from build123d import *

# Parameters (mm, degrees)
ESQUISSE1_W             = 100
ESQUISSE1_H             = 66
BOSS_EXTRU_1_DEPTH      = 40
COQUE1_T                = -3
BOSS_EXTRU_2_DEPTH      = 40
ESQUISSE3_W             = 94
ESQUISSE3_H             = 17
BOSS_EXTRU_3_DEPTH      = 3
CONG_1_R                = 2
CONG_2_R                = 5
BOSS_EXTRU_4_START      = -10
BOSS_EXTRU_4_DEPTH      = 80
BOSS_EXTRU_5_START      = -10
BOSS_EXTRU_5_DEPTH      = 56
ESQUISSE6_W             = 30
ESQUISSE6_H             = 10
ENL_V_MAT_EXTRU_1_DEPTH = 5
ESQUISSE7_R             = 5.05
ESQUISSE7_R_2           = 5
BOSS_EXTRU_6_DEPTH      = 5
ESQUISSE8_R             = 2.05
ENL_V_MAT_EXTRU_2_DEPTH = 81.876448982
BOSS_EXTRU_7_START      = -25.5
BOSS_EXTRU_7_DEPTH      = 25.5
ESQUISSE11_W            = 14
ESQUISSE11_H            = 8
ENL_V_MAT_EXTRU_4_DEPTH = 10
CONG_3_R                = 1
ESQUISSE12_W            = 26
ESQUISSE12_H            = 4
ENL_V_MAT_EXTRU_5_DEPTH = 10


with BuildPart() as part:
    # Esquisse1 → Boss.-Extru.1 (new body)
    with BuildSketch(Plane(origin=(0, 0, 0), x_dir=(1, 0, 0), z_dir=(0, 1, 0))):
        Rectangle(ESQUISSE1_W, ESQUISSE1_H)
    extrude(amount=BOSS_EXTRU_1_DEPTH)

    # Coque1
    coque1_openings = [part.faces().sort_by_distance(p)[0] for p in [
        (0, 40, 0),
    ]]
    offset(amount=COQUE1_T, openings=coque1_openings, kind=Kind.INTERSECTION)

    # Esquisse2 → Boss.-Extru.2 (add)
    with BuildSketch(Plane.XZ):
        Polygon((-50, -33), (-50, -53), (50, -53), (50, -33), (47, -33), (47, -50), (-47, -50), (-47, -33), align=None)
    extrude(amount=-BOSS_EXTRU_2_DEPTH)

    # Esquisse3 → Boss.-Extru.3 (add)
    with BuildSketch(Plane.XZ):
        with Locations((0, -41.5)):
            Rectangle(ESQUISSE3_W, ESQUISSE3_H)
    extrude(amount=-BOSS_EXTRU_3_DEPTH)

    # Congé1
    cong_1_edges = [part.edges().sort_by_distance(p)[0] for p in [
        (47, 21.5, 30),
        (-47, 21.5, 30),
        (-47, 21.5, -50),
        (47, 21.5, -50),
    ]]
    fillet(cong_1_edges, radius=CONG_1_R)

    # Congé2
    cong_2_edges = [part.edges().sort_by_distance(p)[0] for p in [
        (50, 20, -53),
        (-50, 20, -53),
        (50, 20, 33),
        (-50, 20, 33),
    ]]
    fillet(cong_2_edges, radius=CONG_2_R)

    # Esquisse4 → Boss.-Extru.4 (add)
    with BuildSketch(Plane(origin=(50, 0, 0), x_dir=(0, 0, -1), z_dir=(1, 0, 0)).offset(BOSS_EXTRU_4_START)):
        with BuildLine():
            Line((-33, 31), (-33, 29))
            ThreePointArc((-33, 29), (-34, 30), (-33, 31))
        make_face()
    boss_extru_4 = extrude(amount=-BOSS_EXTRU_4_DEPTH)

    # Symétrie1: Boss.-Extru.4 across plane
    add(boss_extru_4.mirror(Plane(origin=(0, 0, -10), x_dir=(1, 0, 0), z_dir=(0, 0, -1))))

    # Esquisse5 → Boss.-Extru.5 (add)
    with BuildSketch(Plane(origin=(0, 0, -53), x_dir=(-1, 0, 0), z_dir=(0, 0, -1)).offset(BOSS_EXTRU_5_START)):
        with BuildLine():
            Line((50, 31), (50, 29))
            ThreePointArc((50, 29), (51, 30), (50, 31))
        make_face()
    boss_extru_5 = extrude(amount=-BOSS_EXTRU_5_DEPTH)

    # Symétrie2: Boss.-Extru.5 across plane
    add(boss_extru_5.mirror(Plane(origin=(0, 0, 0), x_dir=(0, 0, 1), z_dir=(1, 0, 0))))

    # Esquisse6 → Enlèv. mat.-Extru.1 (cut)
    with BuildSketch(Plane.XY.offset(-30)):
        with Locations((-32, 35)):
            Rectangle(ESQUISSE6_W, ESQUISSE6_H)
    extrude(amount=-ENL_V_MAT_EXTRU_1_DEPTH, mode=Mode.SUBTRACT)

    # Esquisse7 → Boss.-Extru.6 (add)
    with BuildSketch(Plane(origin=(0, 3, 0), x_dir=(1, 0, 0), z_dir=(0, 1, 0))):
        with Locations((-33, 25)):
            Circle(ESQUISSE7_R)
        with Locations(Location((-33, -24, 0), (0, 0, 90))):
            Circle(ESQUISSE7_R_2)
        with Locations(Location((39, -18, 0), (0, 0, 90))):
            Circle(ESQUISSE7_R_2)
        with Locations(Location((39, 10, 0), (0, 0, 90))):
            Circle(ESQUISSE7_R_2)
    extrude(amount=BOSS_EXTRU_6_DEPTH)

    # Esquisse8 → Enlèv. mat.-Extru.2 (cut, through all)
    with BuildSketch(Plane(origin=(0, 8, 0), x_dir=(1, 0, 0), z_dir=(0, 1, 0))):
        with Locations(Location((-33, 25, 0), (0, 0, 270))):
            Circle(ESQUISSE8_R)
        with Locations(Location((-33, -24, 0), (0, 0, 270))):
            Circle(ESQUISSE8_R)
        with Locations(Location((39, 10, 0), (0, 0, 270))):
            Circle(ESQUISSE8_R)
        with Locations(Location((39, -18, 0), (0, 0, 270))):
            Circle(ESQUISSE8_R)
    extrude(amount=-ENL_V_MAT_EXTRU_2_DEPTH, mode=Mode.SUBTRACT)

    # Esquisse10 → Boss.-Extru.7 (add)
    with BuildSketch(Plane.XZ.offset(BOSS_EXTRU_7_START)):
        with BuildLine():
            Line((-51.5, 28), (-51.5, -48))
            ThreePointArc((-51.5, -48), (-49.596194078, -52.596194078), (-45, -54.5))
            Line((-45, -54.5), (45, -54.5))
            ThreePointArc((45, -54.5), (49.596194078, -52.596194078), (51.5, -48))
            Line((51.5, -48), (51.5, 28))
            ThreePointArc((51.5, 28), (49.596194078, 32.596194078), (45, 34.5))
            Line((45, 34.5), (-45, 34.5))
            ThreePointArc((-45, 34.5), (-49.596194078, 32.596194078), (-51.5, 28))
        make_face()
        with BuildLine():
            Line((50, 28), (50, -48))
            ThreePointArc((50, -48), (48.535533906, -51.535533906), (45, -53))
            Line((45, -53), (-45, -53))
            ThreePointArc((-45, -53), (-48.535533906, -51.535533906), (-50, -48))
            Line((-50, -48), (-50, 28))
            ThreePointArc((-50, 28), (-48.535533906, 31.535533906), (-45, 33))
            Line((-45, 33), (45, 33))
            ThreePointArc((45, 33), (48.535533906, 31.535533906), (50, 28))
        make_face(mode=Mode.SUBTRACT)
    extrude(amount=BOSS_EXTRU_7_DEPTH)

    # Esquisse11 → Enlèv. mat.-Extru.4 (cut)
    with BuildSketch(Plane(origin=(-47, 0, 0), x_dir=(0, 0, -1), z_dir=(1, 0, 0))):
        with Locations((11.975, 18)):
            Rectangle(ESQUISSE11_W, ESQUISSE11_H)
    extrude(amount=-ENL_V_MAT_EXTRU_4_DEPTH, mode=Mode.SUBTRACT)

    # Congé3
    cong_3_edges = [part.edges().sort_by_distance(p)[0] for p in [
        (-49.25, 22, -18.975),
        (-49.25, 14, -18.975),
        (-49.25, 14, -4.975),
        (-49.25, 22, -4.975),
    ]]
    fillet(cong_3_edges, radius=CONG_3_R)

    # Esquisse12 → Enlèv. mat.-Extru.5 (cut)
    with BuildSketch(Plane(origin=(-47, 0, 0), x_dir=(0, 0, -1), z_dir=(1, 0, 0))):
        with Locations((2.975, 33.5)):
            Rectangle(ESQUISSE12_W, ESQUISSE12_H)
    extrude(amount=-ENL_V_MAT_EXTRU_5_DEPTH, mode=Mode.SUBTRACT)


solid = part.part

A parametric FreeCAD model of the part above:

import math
import FreeCAD as App
import Part
import Sketcher
from FreeCAD import Vector


def edges_at(feature, points):
    """Names of the edges that pass closest to the given points."""
    edges = feature.Shape.Edges
    near = lambda p: min(range(len(edges)), key=lambda i: edges[i].distToShape(Part.Vertex(*p))[0])
    return sorted({f"Edge{near(p) + 1}" for p in points})


def faces_at(feature, points):
    """Names of the faces that lie closest to the given points."""
    faces = feature.Shape.Faces
    near = lambda p: min(range(len(faces)), key=lambda i: faces[i].distToShape(Part.Vertex(*p))[0])
    return sorted({f"Face{near(p) + 1}" for p in points})


def add_polygon(sketch, points):
    """Adds a closed chain of lines whose ends are joined by coincident constraints."""
    first, n = sketch.GeometryCount, len(points)
    for a, b in zip(points, points[1:] + points[:1]):
        sketch.addGeometry(Part.LineSegment(App.Vector(*a, 0), App.Vector(*b, 0)), False)
    for i in range(n):
        sketch.addConstraint(Sketcher.Constraint("Coincident", first + i, 2, first + (i + 1) % n, 1))

doc = App.newDocument("Part")
body = doc.addObject("PartDesign::Body", "Body")

# Sketch on XZ plane
sketch1 = body.newObject("Sketcher::SketchObject", "Sketch")
sketch1.AttachmentSupport = (doc.getObject("XZ_Plane"), [""])
sketch1.MapMode = "FlatFace"
add_polygon(sketch1, [(-50, -33), (-50, 33), (50, 33), (50, -33)])  # lines 0-3
sketch1.addConstraint([
    Sketcher.Constraint("Vertical", 0),
    Sketcher.Constraint("Horizontal", 1),
    Sketcher.Constraint("Vertical", 2),
    Sketcher.Constraint("Horizontal", 3),
    Sketcher.Constraint("Symmetric", 0, 2, 2, 2, -1, 1),
    Sketcher.Constraint("DistanceX", 1, 1, 1, 2, 100.0),
    Sketcher.Constraint("DistanceY", 0, 1, 0, 2, 66.0),
])
pad1 = body.newObject("PartDesign::Pad", "Pad")
pad1.Profile = sketch1
pad1.Length = 40
pad1.Reversed = True
doc.recompute()

thickness = body.newObject("PartDesign::Thickness", "Thickness")
thickness.Base = (pad1, faces_at(pad1, [(0, 40, 0)]))
thickness.Value = 3
thickness.Reversed = True
thickness.Join = "Intersection"

# Sketch on XZ plane
sketch2 = body.newObject("Sketcher::SketchObject", "Sketch001")
sketch2.AttachmentSupport = (doc.getObject("XZ_Plane"), [""])
sketch2.MapMode = "FlatFace"
add_polygon(sketch2, [(-50, -33), (-50, -53), (50, -53), (50, -33), (47, -33), (47, -50), (-47, -50), (-47, -33)])  # lines 0-7
sketch2.addConstraint([
    Sketcher.Constraint("Vertical", 0),
    Sketcher.Constraint("Horizontal", 1),
    Sketcher.Constraint("Vertical", 2),
    Sketcher.Constraint("Horizontal", 3),
    Sketcher.Constraint("Vertical", 4),
    Sketcher.Constraint("Horizontal", 5),
    Sketcher.Constraint("Vertical", 6),
    Sketcher.Constraint("Horizontal", 7),
    Sketcher.Constraint("Symmetric", 3, 2, 6, 2, -2),
    Sketcher.Constraint("Equal", 3, 7),
    Sketcher.Constraint("DistanceX", 1, 1, 1, 2, 100.0),
    Sketcher.Constraint("DistanceX", 3, 2, 3, 1, 3.0),
    Sketcher.Constraint("DistanceY", 0, 2, 0, 1, 20.0),
    Sketcher.Constraint("DistanceY", 4, 2, 4, 1, 17.0),
    Sketcher.Constraint("DistanceY", 0, 2, -1, 1, 53.0),
])
pad2 = body.newObject("PartDesign::Pad", "Pad001")
pad2.Profile = sketch2
pad2.Length = 40
pad2.Reversed = True

# Sketch on XZ plane
sketch3 = body.newObject("Sketcher::SketchObject", "Sketch002")
sketch3.AttachmentSupport = (doc.getObject("XZ_Plane"), [""])
sketch3.MapMode = "FlatFace"
add_polygon(sketch3, [(-47, -33), (-47, -50), (47, -50), (47, -33)])  # lines 0-3
sketch3.addConstraint([
    Sketcher.Constraint("Vertical", 0),
    Sketcher.Constraint("Horizontal", 1),
    Sketcher.Constraint("Vertical", 2),
    Sketcher.Constraint("Horizontal", 3),
    Sketcher.Constraint("DistanceX", 1, 1, 1, 2, 94.0),
    Sketcher.Constraint("DistanceY", 0, 2, 0, 1, 17.0),
    Sketcher.Constraint("DistanceX", 0, 2, -1, 1, 47.0),
    Sketcher.Constraint("DistanceY", 0, 2, -1, 1, 50.0),
])
pad3 = body.newObject("PartDesign::Pad", "Pad002")
pad3.Profile = sketch3
pad3.Length = 3
pad3.Reversed = True
doc.recompute()

fillet = body.newObject("PartDesign::Fillet", "Fillet")
fillet.Base = (pad3, edges_at(pad3, [
    (47, 21.5, 30),
    (-47, 21.5, 30),
    (-47, 21.5, -50),
    (47, 21.5, -50),
]))
fillet.Radius = 2
doc.recompute()

fillet2 = body.newObject("PartDesign::Fillet", "Fillet001")
fillet2.Base = (fillet, edges_at(fillet, [
    (50, 20, -53),
    (-50, 20, -53),
    (50, 20, 33),
    (-50, 20, 33),
]))
fillet2.Radius = 5

# Sketch on YZ plane
sketch4 = body.newObject("Sketcher::SketchObject", "Sketch003")
sketch4.AttachmentSupport = (doc.getObject("YZ_Plane"), [""])
sketch4.MapMode = "FlatFace"
sketch4.AttachmentOffset = App.Placement(Vector(0, 0, 40), App.Rotation())
sketch4.addGeometry([
    Part.LineSegment(Vector(29, 33, 0), Vector(31, 33, 0)),
    Part.ArcOfCircle(Part.Circle(Vector(30, 33, 0), Vector(0, 0, 1), 1), math.radians(0), math.radians(180)),
], False)
sketch4.addConstraint([
    Sketcher.Constraint("Coincident", 0, 1, 1, 2),
    Sketcher.Constraint("Coincident", 1, 1, 0, 2),
    Sketcher.Constraint("Horizontal", 0),
    Sketcher.Constraint("Horizontal", 1, 3, 0, 1),
    Sketcher.Constraint("Radius", 1, 1.0),
    Sketcher.Constraint("DistanceX", -1, 1, 1, 3, 30.0),
    Sketcher.Constraint("DistanceY", -1, 1, 1, 3, 33.0),
])
pad4 = body.newObject("PartDesign::Pad", "Pad003")
pad4.Profile = sketch4
pad4.Length = 80
pad4.Reversed = True
doc.recompute()

datumplane = body.newObject("PartDesign::Plane", "DatumPlane")
datumplane.AttachmentSupport = (doc.getObject("XY_Plane"), [""])
datumplane.MapMode = "FlatFace"
datumplane.AttachmentOffset = App.Placement(Vector(0, 0, -10), App.Rotation())
mirrored = body.newObject("PartDesign::Mirrored", "Mirrored")
mirrored.Originals = [pad4]
mirrored.MirrorPlane = (datumplane, [""])
body.Tip = mirrored

# Sketch on XY plane
sketch5 = body.newObject("Sketcher::SketchObject", "Sketch004")
sketch5.AttachmentSupport = (doc.getObject("XY_Plane"), [""])
sketch5.MapMode = "FlatFace"
sketch5.AttachmentOffset = App.Placement(Vector(0, 0, -43), App.Rotation())
sketch5.addGeometry([
    Part.LineSegment(Vector(-50, 31, 0), Vector(-50, 29, 0)),
    Part.ArcOfCircle(Part.Circle(Vector(-50, 30, 0), Vector(0, 0, 1), 1), math.radians(90), math.radians(270)),
], False)
sketch5.addConstraint([
    Sketcher.Constraint("Coincident", 0, 1, 1, 1),
    Sketcher.Constraint("Coincident", 1, 2, 0, 2),
    Sketcher.Constraint("Vertical", 0),
    Sketcher.Constraint("Vertical", 1, 3, 0, 1),
    Sketcher.Constraint("Radius", 1, 1.0),
    Sketcher.Constraint("DistanceX", 1, 3, -1, 1, 50.0),
    Sketcher.Constraint("DistanceY", -1, 1, 1, 3, 30.0),
])
pad5 = body.newObject("PartDesign::Pad", "Pad004")
pad5.Profile = sketch5
pad5.Length = 56
doc.recompute()

mirrored2 = body.newObject("PartDesign::Mirrored", "Mirrored001")
mirrored2.Originals = [pad5]
mirrored2.MirrorPlane = (doc.getObject("YZ_Plane"), [""])
body.Tip = mirrored2

# Sketch on XY plane
sketch6 = body.newObject("Sketcher::SketchObject", "Sketch005")
sketch6.AttachmentSupport = (doc.getObject("XY_Plane"), [""])
sketch6.MapMode = "FlatFace"
sketch6.AttachmentOffset = App.Placement(Vector(0, 0, -30), App.Rotation())
add_polygon(sketch6, [(-47, 40), (-47, 30), (-17, 30), (-17, 40)])  # lines 0-3
sketch6.addConstraint([
    Sketcher.Constraint("Vertical", 0),
    Sketcher.Constraint("Horizontal", 1),
    Sketcher.Constraint("Vertical", 2),
    Sketcher.Constraint("Horizontal", 3),
    Sketcher.Constraint("DistanceX", 1, 1, 1, 2, 30.0),
    Sketcher.Constraint("DistanceY", 0, 2, 0, 1, 10.0),
    Sketcher.Constraint("DistanceX", 0, 2, -1, 1, 47.0),
    Sketcher.Constraint("DistanceY", -1, 1, 0, 2, 30.0),
])
pocket1 = body.newObject("PartDesign::Pocket", "Pocket")
pocket1.Profile = sketch6
pocket1.Length = 5

# Sketch on XZ plane
sketch7 = body.newObject("Sketcher::SketchObject", "Sketch006")
sketch7.AttachmentSupport = (doc.getObject("XZ_Plane"), [""])
sketch7.MapMode = "FlatFace"
sketch7.AttachmentOffset = App.Placement(Vector(0, 0, -3), App.Rotation())
sketch7.addGeometry([
    Part.Circle(Vector(-33, -25, 0), Vector(0, 0, 1), 5.05),
    Part.Circle(Vector(-33, 24, 0), Vector(0, 0, 1), 5),
    Part.Circle(Vector(39, 18, 0), Vector(0, 0, 1), 5),
    Part.Circle(Vector(39, -10, 0), Vector(0, 0, 1), 5),
], False)
sketch7.addConstraint([
    Sketcher.Constraint("Equal", 1, 2),
    Sketcher.Constraint("Equal", 2, 3),
    Sketcher.Constraint("Vertical", 0, 3, 1, 3),
    Sketcher.Constraint("Vertical", 2, 3, 3, 3),
    Sketcher.Constraint("Diameter", 1, 10.0),
    Sketcher.Constraint("Diameter", 0, 10.1),
    Sketcher.Constraint("DistanceX", 0, 3, -1, 1, 33.0),
    Sketcher.Constraint("DistanceY", 0, 3, -1, 1, 25.0),
    Sketcher.Constraint("DistanceY", -1, 1, 1, 3, 24.0),
    Sketcher.Constraint("DistanceX", -1, 1, 2, 3, 39.0),
    Sketcher.Constraint("DistanceY", -1, 1, 2, 3, 18.0),
    Sketcher.Constraint("DistanceY", 3, 3, -1, 1, 10.0),
])
pad6 = body.newObject("PartDesign::Pad", "Pad005")
pad6.Profile = sketch7
pad6.Length = 5
pad6.Reversed = True

# Sketch on XZ plane
sketch8 = body.newObject("Sketcher::SketchObject", "Sketch007")
sketch8.AttachmentSupport = (doc.getObject("XZ_Plane"), [""])
sketch8.MapMode = "FlatFace"
sketch8.AttachmentOffset = App.Placement(Vector(0, 0, -8), App.Rotation())
sketch8.addGeometry([
    Part.Circle(Vector(-33, -25, 0), Vector(0, 0, 1), 2.05),
    Part.Circle(Vector(-33, 24, 0), Vector(0, 0, 1), 2.05),
    Part.Circle(Vector(39, -10, 0), Vector(0, 0, 1), 2.05),
    Part.Circle(Vector(39, 18, 0), Vector(0, 0, 1), 2.05),
], False)
sketch8.addConstraint([
    Sketcher.Constraint("Equal", 0, 1),
    Sketcher.Constraint("Equal", 1, 2),
    Sketcher.Constraint("Equal", 2, 3),
    Sketcher.Constraint("Vertical", 0, 3, 1, 3),
    Sketcher.Constraint("Vertical", 2, 3, 3, 3),
    Sketcher.Constraint("Diameter", 0, 4.1),
    Sketcher.Constraint("DistanceX", 0, 3, -1, 1, 33.0),
    Sketcher.Constraint("DistanceY", 0, 3, -1, 1, 25.0),
    Sketcher.Constraint("DistanceY", -1, 1, 1, 3, 24.0),
    Sketcher.Constraint("DistanceX", -1, 1, 2, 3, 39.0),
    Sketcher.Constraint("DistanceY", 2, 3, -1, 1, 10.0),
    Sketcher.Constraint("DistanceY", -1, 1, 3, 3, 18.0),
])
pocket2 = body.newObject("PartDesign::Pocket", "Pocket001")
pocket2.Profile = sketch8
pocket2.Type = "ThroughAll"
pocket2.Reversed = True

# Sketch on XZ plane
sketch9 = body.newObject("Sketcher::SketchObject", "Sketch008")
sketch9.AttachmentSupport = (doc.getObject("XZ_Plane"), [""])
sketch9.MapMode = "FlatFace"
sketch9.AttachmentOffset = App.Placement(Vector(0, 0, -25.5), App.Rotation())
sketch9.addGeometry([
    Part.LineSegment(Vector(-51.5, 28, 0), Vector(-51.5, -48, 0)),  # 0
    Part.ArcOfCircle(Part.Circle(Vector(-45, -48, 0), Vector(0, 0, 1), 6.5), math.radians(180), math.radians(270)),  # 1
    Part.LineSegment(Vector(-45, -54.5, 0), Vector(45, -54.5, 0)),  # 2
    Part.ArcOfCircle(Part.Circle(Vector(45, -48, 0), Vector(0, 0, 1), 6.5), math.radians(-90), math.radians(0)),  # 3
    Part.LineSegment(Vector(51.5, -48, 0), Vector(51.5, 28, 0)),  # 4
    Part.ArcOfCircle(Part.Circle(Vector(45, 28, 0), Vector(0, 0, 1), 6.5), math.radians(0), math.radians(90)),  # 5
    Part.LineSegment(Vector(45, 34.5, 0), Vector(-45, 34.5, 0)),  # 6
    Part.ArcOfCircle(Part.Circle(Vector(-45, 28, 0), Vector(0, 0, 1), 6.5), math.radians(90), math.radians(180)),  # 7
    Part.ArcOfCircle(Part.Circle(Vector(45, 28, 0), Vector(0, 0, 1), 5), math.radians(0), math.radians(90)),  # 8
    Part.LineSegment(Vector(50, 28, 0), Vector(50, -48, 0)),  # 9
    Part.ArcOfCircle(Part.Circle(Vector(45, -48, 0), Vector(0, 0, 1), 5), math.radians(-90), math.radians(0)),  # 10
    Part.LineSegment(Vector(45, -53, 0), Vector(-45, -53, 0)),  # 11
    Part.ArcOfCircle(Part.Circle(Vector(-45, -48, 0), Vector(0, 0, 1), 5), math.radians(180), math.radians(270)),  # 12
    Part.LineSegment(Vector(-50, -48, 0), Vector(-50, 28, 0)),  # 13
    Part.ArcOfCircle(Part.Circle(Vector(-45, 28, 0), Vector(0, 0, 1), 5), math.radians(90), math.radians(180)),  # 14
    Part.LineSegment(Vector(-45, 33, 0), Vector(45, 33, 0)),  # 15
], False)
sketch9.addConstraint([
    Sketcher.Constraint("Tangent", 0, 2, 1, 1),
    Sketcher.Constraint("Tangent", 1, 2, 2, 1),
    Sketcher.Constraint("Tangent", 2, 2, 3, 1),
    Sketcher.Constraint("Tangent", 3, 2, 4, 1),
    Sketcher.Constraint("Tangent", 4, 2, 5, 1),
    Sketcher.Constraint("Tangent", 5, 2, 6, 1),
    Sketcher.Constraint("Tangent", 6, 2, 7, 1),
    Sketcher.Constraint("Tangent", 7, 2, 0, 1),
    Sketcher.Constraint("Tangent", 8, 1, 9, 1),
    Sketcher.Constraint("Tangent", 9, 2, 10, 2),
    Sketcher.Constraint("Tangent", 10, 1, 11, 1),
    Sketcher.Constraint("Tangent", 11, 2, 12, 2),
    Sketcher.Constraint("Tangent", 12, 1, 13, 1),
    Sketcher.Constraint("Tangent", 13, 2, 14, 2),
    Sketcher.Constraint("Tangent", 14, 1, 15, 1),
    Sketcher.Constraint("Tangent", 15, 2, 8, 2),
    Sketcher.Constraint("Vertical", 0),
    Sketcher.Constraint("Horizontal", 2),
    Sketcher.Constraint("Vertical", 4),
    Sketcher.Constraint("Horizontal", 6),
    Sketcher.Constraint("Vertical", 9),
    Sketcher.Constraint("Horizontal", 11),
    Sketcher.Constraint("Vertical", 13),
    Sketcher.Constraint("Horizontal", 15),
    Sketcher.Constraint("Coincident", 8, 3, 5, 3),
    Sketcher.Constraint("Coincident", 10, 3, 3, 3),
    Sketcher.Constraint("Coincident", 12, 3, 1, 3),
    Sketcher.Constraint("Equal", 1, 3),
    Sketcher.Constraint("Equal", 3, 5),
    Sketcher.Constraint("Equal", 5, 7),
    Sketcher.Constraint("Equal", 12, 14),
    Sketcher.Constraint("Radius", 8, 5.0),
    Sketcher.Constraint("Radius", 1, 6.5),
    Sketcher.Constraint("DistanceX", 2, 1, 2, 2, 90.0),
    Sketcher.Constraint("DistanceY", 0, 2, 0, 1, 76.0),
    Sketcher.Constraint("DistanceX", 1, 3, -1, 1, 45.0),
    Sketcher.Constraint("DistanceY", 1, 3, -1, 1, 48.0),
])
pad7 = body.newObject("PartDesign::Pad", "Pad006")
pad7.Profile = sketch9
pad7.Length = 25.5

# Sketch on YZ plane
sketch10 = body.newObject("Sketcher::SketchObject", "Sketch009")
sketch10.AttachmentSupport = (doc.getObject("YZ_Plane"), [""])
sketch10.MapMode = "FlatFace"
sketch10.AttachmentOffset = App.Placement(Vector(0, 0, -47), App.Rotation())
add_polygon(sketch10, [(22, -4.975), (14, -4.975), (14, -18.975), (22, -18.975)])  # lines 0-3
sketch10.addConstraint([
    Sketcher.Constraint("Horizontal", 0),
    Sketcher.Constraint("Vertical", 1),
    Sketcher.Constraint("Horizontal", 2),
    Sketcher.Constraint("Vertical", 3),
    Sketcher.Constraint("DistanceX", 0, 2, 0, 1, 8.0),
    Sketcher.Constraint("DistanceY", 1, 2, 1, 1, 14.0),
    Sketcher.Constraint("DistanceX", -1, 1, 0, 2, 14.0),
    Sketcher.Constraint("DistanceY", 0, 2, -1, 1, 4.975),
])
pocket3 = body.newObject("PartDesign::Pocket", "Pocket002")
pocket3.Profile = sketch10
pocket3.Length = 10
doc.recompute()

fillet3 = body.newObject("PartDesign::Fillet", "Fillet002")
fillet3.Base = (pocket3, edges_at(pocket3, [
    (-49.25, 22, -18.975),
    (-49.25, 14, -18.975),
    (-49.25, 14, -4.975),
    (-49.25, 22, -4.975),
]))
fillet3.Radius = 1

# Sketch on YZ plane
sketch11 = body.newObject("Sketcher::SketchObject", "Sketch010")
sketch11.AttachmentSupport = (doc.getObject("YZ_Plane"), [""])
sketch11.MapMode = "FlatFace"
sketch11.AttachmentOffset = App.Placement(Vector(0, 0, -47), App.Rotation())
add_polygon(sketch11, [(35.5, 10.025), (31.5, 10.025), (31.5, -15.975), (35.5, -15.975)])  # lines 0-3
sketch11.addConstraint([
    Sketcher.Constraint("Horizontal", 0),
    Sketcher.Constraint("Vertical", 1),
    Sketcher.Constraint("Horizontal", 2),
    Sketcher.Constraint("Vertical", 3),
    Sketcher.Constraint("DistanceX", 0, 2, 0, 1, 4.0),
    Sketcher.Constraint("DistanceY", 1, 2, 1, 1, 26.0),
    Sketcher.Constraint("DistanceX", -1, 1, 0, 2, 31.5),
    Sketcher.Constraint("DistanceY", -1, 1, 0, 2, 10.025),
])
pocket4 = body.newObject("PartDesign::Pocket", "Pocket003")
pocket4.Profile = sketch11
pocket4.Length = 10

doc.recompute()
